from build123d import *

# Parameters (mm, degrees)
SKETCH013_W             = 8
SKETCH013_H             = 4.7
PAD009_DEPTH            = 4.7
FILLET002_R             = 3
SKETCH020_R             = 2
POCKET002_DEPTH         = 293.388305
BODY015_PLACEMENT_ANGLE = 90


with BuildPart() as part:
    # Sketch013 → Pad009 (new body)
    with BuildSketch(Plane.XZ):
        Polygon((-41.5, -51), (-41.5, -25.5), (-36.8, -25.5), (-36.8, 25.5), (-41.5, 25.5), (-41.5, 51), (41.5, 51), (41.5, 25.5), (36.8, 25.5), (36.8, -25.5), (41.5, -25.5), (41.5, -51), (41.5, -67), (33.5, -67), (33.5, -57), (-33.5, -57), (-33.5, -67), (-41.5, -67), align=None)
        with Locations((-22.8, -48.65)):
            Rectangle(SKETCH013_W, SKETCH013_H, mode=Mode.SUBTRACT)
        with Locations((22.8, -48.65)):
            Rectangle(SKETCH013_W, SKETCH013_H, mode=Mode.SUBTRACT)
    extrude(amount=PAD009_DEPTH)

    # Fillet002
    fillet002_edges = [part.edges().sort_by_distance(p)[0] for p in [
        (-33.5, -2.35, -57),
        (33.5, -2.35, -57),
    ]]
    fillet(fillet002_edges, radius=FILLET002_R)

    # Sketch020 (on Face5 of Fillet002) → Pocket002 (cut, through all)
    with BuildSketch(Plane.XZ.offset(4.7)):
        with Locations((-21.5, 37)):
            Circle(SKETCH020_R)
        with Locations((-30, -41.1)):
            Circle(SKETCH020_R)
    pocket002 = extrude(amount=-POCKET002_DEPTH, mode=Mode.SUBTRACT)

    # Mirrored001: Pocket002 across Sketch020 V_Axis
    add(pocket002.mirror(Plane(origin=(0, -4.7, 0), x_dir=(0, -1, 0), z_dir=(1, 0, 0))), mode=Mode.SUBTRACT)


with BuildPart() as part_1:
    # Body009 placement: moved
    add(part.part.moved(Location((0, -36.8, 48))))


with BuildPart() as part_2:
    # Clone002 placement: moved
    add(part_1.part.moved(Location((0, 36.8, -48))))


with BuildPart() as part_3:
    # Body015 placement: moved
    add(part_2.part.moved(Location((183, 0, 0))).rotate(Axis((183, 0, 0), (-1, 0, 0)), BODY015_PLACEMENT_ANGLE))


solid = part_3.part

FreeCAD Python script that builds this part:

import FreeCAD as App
import Part
import Sketcher

V = App.Vector


def edges_at(feature, points):
    """Names of the edges that pass closest to the given points."""
    edges = feature.Shape.Edges
    near = lambda p: min(range(len(edges)), key=lambda i: edges[i].distToShape(Part.Vertex(*p))[0])
    return sorted({f"Edge{near(p) + 1}" for p in points})

doc = App.newDocument("Part")
body = doc.addObject("PartDesign::Body", "Body")

# Sketch on XZ plane
sketch1 = body.newObject("Sketcher::SketchObject", "Sketch")
sketch1.AttachmentSupport = (doc.getObject("XZ_Plane"), [""])
sketch1.MapMode = "FlatFace"
sketch1.addGeometry([
    Part.LineSegment(V(-41.5, -25.5, 0), V(-41.5, -67, 0)),  # 0
    Part.LineSegment(V(-41.5, -67, 0), V(-33.5, -67, 0)),  # 1
    Part.LineSegment(V(-33.5, -67, 0), V(-33.5, -57, 0)),  # 2
    Part.LineSegment(V(-33.5, -57, 0), V(33.5, -57, 0)),  # 3
    Part.LineSegment(V(33.5, -57, 0), V(33.5, -67, 0)),  # 4
    Part.LineSegment(V(33.5, -67, 0), V(41.5, -67, 0)),  # 5
    Part.LineSegment(V(41.5, -67, 0), V(41.5, -25.5, 0)),  # 6
    Part.LineSegment(V(41.5, -25.5, 0), V(36.8, -25.5, 0)),  # 7
    Part.LineSegment(V(36.8, -25.5, 0), V(36.8, 25.5, 0)),  # 8
    Part.LineSegment(V(36.8, 25.5, 0), V(41.5, 25.5, 0)),  # 9
    Part.LineSegment(V(41.5, 25.5, 0), V(41.5, 51, 0)),  # 10
    Part.LineSegment(V(41.5, 51, 0), V(-41.5, 51, 0)),  # 11
    Part.LineSegment(V(-41.5, 51, 0), V(-41.5, 25.5, 0)),  # 12
    Part.LineSegment(V(-41.5, 25.5, 0), V(-36.8, 25.5, 0)),  # 13
    Part.LineSegment(V(-36.8, 25.5, 0), V(-36.8, -25.5, 0)),  # 14
    Part.LineSegment(V(-36.8, -25.5, 0), V(-41.5, -25.5, 0)),  # 15
    Part.LineSegment(V(18.8, -51, 0), V(18.8, -46.3, 0)),  # 16
    Part.LineSegment(V(18.8, -46.3, 0), V(26.8, -46.3, 0)),  # 17
    Part.LineSegment(V(26.8, -46.3, 0), V(26.8, -51, 0)),  # 18
    Part.LineSegment(V(26.8, -51, 0), V(18.8, -51, 0)),  # 19
    Part.LineSegment(V(-26.8, -51, 0), V(-26.8, -46.3, 0)),  # 20
    Part.LineSegment(V(-26.8, -46.3, 0), V(-18.8, -46.3, 0)),  # 21
    Part.LineSegment(V(-18.8, -46.3, 0), V(-18.8, -51, 0)),  # 22
    Part.LineSegment(V(-18.8, -51, 0), V(-26.8, -51, 0)),  # 23
], False)
sketch1.addConstraint([
    Sketcher.Constraint("Coincident", 0, 2, 1, 1),
    Sketcher.Constraint("Coincident", 1, 2, 2, 1),
    Sketcher.Constraint("Coincident", 2, 2, 3, 1),
    Sketcher.Constraint("Coincident", 3, 2, 4, 1),
    Sketcher.Constraint("Coincident", 4, 2, 5, 1),
    Sketcher.Constraint("Coincident", 5, 2, 6, 1),
    Sketcher.Constraint("Coincident", 6, 2, 7, 1),
    Sketcher.Constraint("Coincident", 7, 2, 8, 1),
    Sketcher.Constraint("Coincident", 8, 2, 9, 1),
    Sketcher.Constraint("Coincident", 9, 2, 10, 1),
    Sketcher.Constraint("Coincident", 10, 2, 11, 1),
    Sketcher.Constraint("Coincident", 11, 2, 12, 1),
    Sketcher.Constraint("Coincident", 12, 2, 13, 1),
    Sketcher.Constraint("Coincident", 13, 2, 14, 1),
    Sketcher.Constraint("Coincident", 14, 2, 15, 1),
    Sketcher.Constraint("Coincident", 15, 2, 0, 1),
    Sketcher.Constraint("Coincident", 16, 2, 17, 1),
    Sketcher.Constraint("Coincident", 17, 2, 18, 1),
    Sketcher.Constraint("Coincident", 18, 2, 19, 1),
    Sketcher.Constraint("Coincident", 19, 2, 16, 1),
    Sketcher.Constraint("Coincident", 20, 2, 21, 1),
    Sketcher.Constraint("Coincident", 21, 2, 22, 1),
    Sketcher.Constraint("Coincident", 22, 2, 23, 1),
    Sketcher.Constraint("Coincident", 23, 2, 20, 1),
    Sketcher.Constraint("Vertical", 0),
    Sketcher.Constraint("Horizontal", 1),
    Sketcher.Constraint("Vertical", 2),
    Sketcher.Constraint("Horizontal", 3),
    Sketcher.Constraint("Vertical", 4),
    Sketcher.Constraint("Horizontal", 5),
    Sketcher.Constraint("Vertical", 6),
    Sketcher.Constraint("Horizontal", 7),
    Sketcher.Constraint("Vertical", 8),
    Sketcher.Constraint("Horizontal", 9),
    Sketcher.Constraint("Vertical", 10),
    Sketcher.Constraint("Horizontal", 11),
    Sketcher.Constraint("Vertical", 12),
    Sketcher.Constraint("Horizontal", 13),
    Sketcher.Constraint("Vertical", 14),
    Sketcher.Constraint("Horizontal", 15),
    Sketcher.Constraint("Vertical", 16),
    Sketcher.Constraint("Horizontal", 17),
    Sketcher.Constraint("Vertical", 18),
    Sketcher.Constraint("Horizontal", 19),
    Sketcher.Constraint("Vertical", 20),
    Sketcher.Constraint("Horizontal", 21),
    Sketcher.Constraint("Vertical", 22),
    Sketcher.Constraint("Horizontal", 23),
    Sketcher.Constraint("Symmetric", 6, 2, 12, 2, -1, 1),
    Sketcher.Constraint("Symmetric", 8, 2, 14, 2, -1, 1),
    Sketcher.Constraint("Symmetric", 1, 2, 4, 2, -2),
    Sketcher.Constraint("Symmetric", 9, 2, 12, 2, -2),
    Sketcher.Constraint("Symmetric", 17, 2, 20, 2, -2),
    Sketcher.Constraint("Symmetric", 19, 2, 22, 2, -2),
    Sketcher.Constraint("Vertical", 0, 2, 11, 2),
    Sketcher.Constraint("Equal", 5, 17),
    Sketcher.Constraint("Equal", 15, 16),
    Sketcher.Constraint("DistanceX", 1, 1, 1, 2, 8.0),
    Sketcher.Constraint("DistanceX", 3, 1, 3, 2, 67.0),
    Sketcher.Constraint("DistanceY", 2, 1, 2, 2, 10.0),
    Sketcher.Constraint("DistanceY", 8, 1, 8, 2, 51.0),
    Sketcher.Constraint("DistanceX", 7, 2, 7, 1, 4.7),
    Sketcher.Constraint("DistanceY", 0, 2, 0, 1, 41.5),
    Sketcher.Constraint("DistanceY", 10, 1, 10, 2, 25.5),
    Sketcher.Constraint("DistanceY", 18, 2, -1, 1, 51.0),
    Sketcher.Constraint("DistanceX", 16, 2, 7, 2, 18.0),
])
pad1 = body.newObject("PartDesign::Pad", "Pad")
pad1.Profile = sketch1
pad1.Length = 4.7
doc.recompute()

fillet = body.newObject("PartDesign::Fillet", "Fillet")
fillet.Base = (pad1, edges_at(pad1, [(-33.5, -2.35, -57), (33.5, -2.35, -57)]))
fillet.Radius = 3

# Sketch on XZ plane
sketch2 = body.newObject("Sketcher::SketchObject", "Sketch001")
sketch2.AttachmentSupport = (doc.getObject("XZ_Plane"), [""])
sketch2.MapMode = "FlatFace"
sketch2.AttachmentOffset = App.Placement(V(0, 0, 4.7), App.Rotation())
sketch2.addGeometry([
    Part.Circle(V(-21.5, 37, 0), V(0, 0, 1), 2),
    Part.Circle(V(-30, -41.1, 0), V(0, 0, 1), 2),
], False)
sketch2.addConstraint([
    Sketcher.Constraint("Equal", 0, 1),
    Sketcher.Constraint("Diameter", 0, 4.0),
    Sketcher.Constraint("DistanceY", -1, 1, 0, 3, 37.0),
    Sketcher.Constraint("DistanceX", 1, 3, -1, 1, 30.0),
    Sketcher.Constraint("DistanceX", 0, 3, -1, 1, 21.5),
    Sketcher.Constraint("DistanceY", 1, 3, -1, 1, 41.1),
])
pocket1 = body.newObject("PartDesign::Pocket", "Pocket")
pocket1.Profile = sketch2
pocket1.Type = "ThroughAll"
doc.recompute()

mirrored = body.newObject("PartDesign::Mirrored", "Mirrored")
mirrored.Originals = [pocket1]
mirrored.MirrorPlane = (doc.getObject("YZ_Plane"), [""])
body.Tip = mirrored
body2 = doc.addObject("PartDesign::Body", "Body001")
doc.recompute()

body.Placement = App.Placement(V(0, -36.8, 48), App.Rotation(V(0, 0, 1), 0))
boolean = body2.newObject("PartDesign::Boolean", "Boolean")
boolean.Type = "Fuse"
boolean.addObjects([body])
body3 = doc.addObject("PartDesign::Body", "Body002")
doc.recompute()

body2.Placement = App.Placement(V(0, 36.8, -48), App.Rotation(V(0, 0, 1), 0))
boolean2 = body3.newObject("PartDesign::Boolean", "Boolean001")
boolean2.Type = "Fuse"
boolean2.addObjects([body2])
body4 = doc.addObject("PartDesign::Body", "Body003")
doc.recompute()

body3.Placement = App.Placement(V(183, 0, 0), App.Rotation(V(-1, 0, 0), 90))
boolean3 = body4.newObject("PartDesign::Boolean", "Boolean002")
boolean3.Type = "Fuse"
boolean3.addObjects([body3])

doc.recompute()
